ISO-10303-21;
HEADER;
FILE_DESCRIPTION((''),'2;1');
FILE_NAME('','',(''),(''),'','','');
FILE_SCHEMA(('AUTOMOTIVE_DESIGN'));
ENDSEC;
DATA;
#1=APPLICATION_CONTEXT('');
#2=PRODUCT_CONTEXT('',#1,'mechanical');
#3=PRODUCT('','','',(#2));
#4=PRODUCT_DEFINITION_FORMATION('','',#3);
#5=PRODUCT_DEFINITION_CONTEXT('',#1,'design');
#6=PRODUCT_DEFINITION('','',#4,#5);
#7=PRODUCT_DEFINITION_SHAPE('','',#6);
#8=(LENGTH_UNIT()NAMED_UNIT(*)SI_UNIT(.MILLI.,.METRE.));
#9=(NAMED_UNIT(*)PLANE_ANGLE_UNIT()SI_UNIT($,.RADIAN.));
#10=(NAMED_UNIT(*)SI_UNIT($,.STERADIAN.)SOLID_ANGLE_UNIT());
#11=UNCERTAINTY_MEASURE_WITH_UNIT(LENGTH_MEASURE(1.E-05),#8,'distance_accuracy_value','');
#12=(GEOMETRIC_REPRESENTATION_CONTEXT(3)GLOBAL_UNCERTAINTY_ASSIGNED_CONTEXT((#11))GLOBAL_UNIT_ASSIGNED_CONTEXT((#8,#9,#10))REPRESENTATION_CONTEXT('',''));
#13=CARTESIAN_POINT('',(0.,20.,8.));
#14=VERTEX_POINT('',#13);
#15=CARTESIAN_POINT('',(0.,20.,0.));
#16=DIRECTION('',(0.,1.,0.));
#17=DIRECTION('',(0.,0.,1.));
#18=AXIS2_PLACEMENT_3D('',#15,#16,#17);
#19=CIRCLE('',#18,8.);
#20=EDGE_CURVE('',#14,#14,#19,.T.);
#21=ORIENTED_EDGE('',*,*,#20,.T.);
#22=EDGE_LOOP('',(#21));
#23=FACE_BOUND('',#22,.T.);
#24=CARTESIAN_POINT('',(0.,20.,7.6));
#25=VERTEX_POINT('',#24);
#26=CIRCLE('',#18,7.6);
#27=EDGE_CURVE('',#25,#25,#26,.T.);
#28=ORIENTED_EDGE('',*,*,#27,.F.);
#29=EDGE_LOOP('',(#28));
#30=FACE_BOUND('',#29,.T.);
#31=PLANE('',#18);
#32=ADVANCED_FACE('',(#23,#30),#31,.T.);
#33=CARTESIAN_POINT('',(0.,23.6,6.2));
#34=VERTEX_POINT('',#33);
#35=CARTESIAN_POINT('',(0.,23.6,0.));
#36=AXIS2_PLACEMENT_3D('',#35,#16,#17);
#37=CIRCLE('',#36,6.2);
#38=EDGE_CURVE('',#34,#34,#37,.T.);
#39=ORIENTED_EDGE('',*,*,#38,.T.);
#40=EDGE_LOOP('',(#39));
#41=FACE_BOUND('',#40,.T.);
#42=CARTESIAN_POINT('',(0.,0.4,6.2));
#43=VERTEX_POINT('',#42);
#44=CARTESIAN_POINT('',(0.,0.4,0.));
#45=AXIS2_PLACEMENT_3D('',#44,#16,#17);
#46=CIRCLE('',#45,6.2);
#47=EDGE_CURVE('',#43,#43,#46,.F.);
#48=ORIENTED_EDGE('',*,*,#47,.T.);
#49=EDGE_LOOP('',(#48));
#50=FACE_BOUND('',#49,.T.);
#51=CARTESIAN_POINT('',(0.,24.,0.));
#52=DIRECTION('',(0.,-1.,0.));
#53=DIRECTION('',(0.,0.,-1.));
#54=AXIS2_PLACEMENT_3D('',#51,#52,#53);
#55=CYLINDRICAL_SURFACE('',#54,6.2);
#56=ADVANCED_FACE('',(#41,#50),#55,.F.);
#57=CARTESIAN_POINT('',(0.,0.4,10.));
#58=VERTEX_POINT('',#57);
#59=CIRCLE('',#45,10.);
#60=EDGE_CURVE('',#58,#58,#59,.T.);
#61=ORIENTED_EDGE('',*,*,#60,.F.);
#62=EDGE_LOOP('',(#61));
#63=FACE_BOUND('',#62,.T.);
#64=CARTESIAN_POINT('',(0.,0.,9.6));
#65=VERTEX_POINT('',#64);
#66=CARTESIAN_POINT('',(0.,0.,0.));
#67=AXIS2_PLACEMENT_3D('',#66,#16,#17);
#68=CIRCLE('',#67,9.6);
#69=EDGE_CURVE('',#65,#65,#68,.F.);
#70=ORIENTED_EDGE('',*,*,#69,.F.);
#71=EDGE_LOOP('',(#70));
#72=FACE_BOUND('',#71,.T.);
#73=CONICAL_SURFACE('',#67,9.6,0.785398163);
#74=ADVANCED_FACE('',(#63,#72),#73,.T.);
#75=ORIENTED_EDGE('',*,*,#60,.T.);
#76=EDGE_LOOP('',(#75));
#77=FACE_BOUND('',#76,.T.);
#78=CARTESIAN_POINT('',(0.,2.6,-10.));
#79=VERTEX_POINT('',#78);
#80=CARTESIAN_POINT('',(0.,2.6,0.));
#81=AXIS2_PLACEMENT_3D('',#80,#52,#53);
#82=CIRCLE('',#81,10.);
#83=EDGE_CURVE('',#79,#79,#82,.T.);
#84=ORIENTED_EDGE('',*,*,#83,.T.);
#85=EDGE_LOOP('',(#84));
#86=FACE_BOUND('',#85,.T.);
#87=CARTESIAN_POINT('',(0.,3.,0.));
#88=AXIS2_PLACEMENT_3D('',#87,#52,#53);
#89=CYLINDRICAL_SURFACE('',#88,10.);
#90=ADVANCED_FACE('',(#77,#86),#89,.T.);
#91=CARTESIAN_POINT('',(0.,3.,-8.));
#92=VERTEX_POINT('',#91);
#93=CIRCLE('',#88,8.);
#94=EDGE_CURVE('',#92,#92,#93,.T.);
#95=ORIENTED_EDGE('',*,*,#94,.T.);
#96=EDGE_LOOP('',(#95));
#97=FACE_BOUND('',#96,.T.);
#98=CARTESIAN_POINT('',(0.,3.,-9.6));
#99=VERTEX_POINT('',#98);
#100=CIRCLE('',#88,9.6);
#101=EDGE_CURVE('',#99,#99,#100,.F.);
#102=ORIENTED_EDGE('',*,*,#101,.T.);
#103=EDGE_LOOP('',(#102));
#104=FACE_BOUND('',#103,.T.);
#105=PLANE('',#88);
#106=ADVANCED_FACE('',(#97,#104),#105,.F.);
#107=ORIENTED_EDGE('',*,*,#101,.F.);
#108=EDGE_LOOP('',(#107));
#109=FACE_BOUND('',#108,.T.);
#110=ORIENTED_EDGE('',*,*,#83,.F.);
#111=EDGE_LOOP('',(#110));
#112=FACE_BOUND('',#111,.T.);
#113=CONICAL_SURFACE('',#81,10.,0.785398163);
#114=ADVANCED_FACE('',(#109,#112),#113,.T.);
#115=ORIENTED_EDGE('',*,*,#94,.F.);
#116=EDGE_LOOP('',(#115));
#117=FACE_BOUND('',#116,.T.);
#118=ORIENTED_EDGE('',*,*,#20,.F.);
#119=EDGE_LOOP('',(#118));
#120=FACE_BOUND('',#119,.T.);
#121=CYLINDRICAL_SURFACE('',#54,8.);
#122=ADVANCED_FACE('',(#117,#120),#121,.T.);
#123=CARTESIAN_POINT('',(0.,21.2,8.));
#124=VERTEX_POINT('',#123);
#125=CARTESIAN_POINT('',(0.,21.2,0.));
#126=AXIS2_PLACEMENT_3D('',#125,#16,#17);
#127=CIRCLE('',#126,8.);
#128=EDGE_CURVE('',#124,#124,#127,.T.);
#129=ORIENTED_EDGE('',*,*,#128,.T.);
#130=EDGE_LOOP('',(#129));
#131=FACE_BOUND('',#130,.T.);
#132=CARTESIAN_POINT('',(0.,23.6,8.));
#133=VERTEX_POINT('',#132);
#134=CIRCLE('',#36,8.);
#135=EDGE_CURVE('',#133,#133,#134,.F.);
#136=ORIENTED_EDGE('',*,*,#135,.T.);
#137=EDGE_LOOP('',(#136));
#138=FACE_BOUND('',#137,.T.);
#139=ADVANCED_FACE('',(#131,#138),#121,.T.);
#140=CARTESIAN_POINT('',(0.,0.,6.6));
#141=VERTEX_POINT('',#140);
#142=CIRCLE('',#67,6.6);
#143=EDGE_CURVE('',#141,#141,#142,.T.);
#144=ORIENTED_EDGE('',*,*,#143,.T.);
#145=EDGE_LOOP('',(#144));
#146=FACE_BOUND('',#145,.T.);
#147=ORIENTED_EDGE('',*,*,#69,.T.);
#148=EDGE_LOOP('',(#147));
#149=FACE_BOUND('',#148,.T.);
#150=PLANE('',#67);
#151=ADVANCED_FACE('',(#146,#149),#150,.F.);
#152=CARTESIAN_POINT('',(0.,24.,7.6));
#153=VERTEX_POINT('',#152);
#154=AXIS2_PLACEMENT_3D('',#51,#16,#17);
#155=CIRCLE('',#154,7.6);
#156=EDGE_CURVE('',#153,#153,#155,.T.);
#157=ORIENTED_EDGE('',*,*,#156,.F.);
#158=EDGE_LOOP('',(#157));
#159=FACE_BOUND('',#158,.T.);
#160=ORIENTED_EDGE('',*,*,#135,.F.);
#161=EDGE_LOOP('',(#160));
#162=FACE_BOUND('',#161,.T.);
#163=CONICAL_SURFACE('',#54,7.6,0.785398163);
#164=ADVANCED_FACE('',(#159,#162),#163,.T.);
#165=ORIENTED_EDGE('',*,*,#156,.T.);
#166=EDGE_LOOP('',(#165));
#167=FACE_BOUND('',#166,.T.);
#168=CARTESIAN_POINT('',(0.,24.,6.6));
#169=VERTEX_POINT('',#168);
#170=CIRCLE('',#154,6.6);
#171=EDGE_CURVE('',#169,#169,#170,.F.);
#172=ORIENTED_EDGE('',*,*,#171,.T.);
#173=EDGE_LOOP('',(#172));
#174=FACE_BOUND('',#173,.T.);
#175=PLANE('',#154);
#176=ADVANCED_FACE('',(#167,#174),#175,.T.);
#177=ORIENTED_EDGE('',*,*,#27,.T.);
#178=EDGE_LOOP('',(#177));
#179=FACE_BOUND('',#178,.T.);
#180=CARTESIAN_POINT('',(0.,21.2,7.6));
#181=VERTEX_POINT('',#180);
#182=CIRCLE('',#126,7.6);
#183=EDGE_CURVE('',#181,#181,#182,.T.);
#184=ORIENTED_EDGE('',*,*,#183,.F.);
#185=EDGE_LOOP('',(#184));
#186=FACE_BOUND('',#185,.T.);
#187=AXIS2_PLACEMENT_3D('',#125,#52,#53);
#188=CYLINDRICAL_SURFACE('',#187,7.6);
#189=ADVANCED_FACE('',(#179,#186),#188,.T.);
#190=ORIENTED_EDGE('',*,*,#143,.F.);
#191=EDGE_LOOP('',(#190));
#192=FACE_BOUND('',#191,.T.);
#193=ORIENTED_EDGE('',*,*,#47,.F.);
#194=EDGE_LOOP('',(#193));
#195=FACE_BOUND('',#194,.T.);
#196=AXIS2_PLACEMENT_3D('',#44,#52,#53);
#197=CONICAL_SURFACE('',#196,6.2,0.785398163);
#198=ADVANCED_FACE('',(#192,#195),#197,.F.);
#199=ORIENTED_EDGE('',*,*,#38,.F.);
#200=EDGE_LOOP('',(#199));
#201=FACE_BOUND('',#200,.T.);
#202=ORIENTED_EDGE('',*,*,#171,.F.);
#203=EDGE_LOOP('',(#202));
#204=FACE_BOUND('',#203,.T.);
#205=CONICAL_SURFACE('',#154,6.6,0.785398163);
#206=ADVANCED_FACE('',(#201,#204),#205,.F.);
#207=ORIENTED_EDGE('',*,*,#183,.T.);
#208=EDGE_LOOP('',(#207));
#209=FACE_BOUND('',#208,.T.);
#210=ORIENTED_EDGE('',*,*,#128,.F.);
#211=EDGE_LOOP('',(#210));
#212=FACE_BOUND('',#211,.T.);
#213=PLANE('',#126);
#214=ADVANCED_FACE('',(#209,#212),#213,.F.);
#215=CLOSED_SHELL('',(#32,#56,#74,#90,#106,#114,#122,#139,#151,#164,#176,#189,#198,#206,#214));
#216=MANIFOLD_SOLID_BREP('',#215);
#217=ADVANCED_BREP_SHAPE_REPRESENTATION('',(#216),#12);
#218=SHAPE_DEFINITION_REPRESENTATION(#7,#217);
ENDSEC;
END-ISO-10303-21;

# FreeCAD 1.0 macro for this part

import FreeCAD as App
import Part
import Sketcher

V = App.Vector


def edges_at(feature, points):
    """Names of the edges that pass closest to the given points."""
    edges = feature.Shape.Edges
    near = lambda p: min(range(len(edges)), key=lambda i: edges[i].distToShape(Part.Vertex(*p))[0])
    return sorted({f"Edge{near(p) + 1}" for p in points})

doc = App.newDocument("Part")
body = doc.addObject("PartDesign::Body", "Body")

sketch1 = body.newObject("Sketcher::SketchObject", "Sketch")
sketch1.AttachmentSupport = (doc.getObject("XZ_Plane"), [""])
sketch1.MapMode = "FlatFace"
sketch1.addGeometry(Part.Circle(V(0, 0, 0), V(0, 0, 1), 8), False)
sketch1.addConstraint([
    Sketcher.Constraint("Coincident", 0, 3, -1, 1),
    Sketcher.Constraint("Diameter", 0, 16.0),
])
pad1 = body.newObject("PartDesign::Pad", "Pad")
pad1.Profile = sketch1
pad1.Length = 24
pad1.Reversed = True

sketch2 = body.newObject("Sketcher::SketchObject", "Sketch001")
sketch2.AttachmentSupport = (doc.getObject("XZ_Plane"), [""])
sketch2.MapMode = "FlatFace"
sketch2.addGeometry(Part.Circle(V(0, 0, 0), V(0, 0, 1), 10), False)
sketch2.addConstraint([
    Sketcher.Constraint("Coincident", 0, 3, -1, 1),
    Sketcher.Constraint("Diameter", 0, 20.0),
])
pad2 = body.newObject("PartDesign::Pad", "Pad001")
pad2.Profile = sketch2
pad2.Length = 3
pad2.Reversed = True

sketch3 = body.newObject("Sketcher::SketchObject", "Sketch002")
sketch3.AttachmentSupport = (doc.getObject("XZ_Plane"), [""])
sketch3.MapMode = "FlatFace"
sketch3.AttachmentOffset = App.Placement(V(0, 0, -20), App.Rotation())
sketch3.addGeometry([
    Part.Circle(V(0, 0, 0), V(0, 0, 1), 8),
    Part.Circle(V(0, 0, 0), V(0, 0, 1), 8),
], False)
sketch3.addConstraint([
    Sketcher.Constraint("Coincident", 0, 3, -1, 1),
    Sketcher.Constraint("Coincident", 1, 3, -1, 1),
    Sketcher.Constraint("Diameter", 0, 16.0),
    Sketcher.Constraint("Diameter", 1, 15.2),
])
pocket1 = body.newObject("PartDesign::Pocket", "Pocket")
pocket1.Profile = sketch3
pocket1.Length = 1.2

sketch4 = body.newObject("Sketcher::SketchObject", "Sketch003")
sketch4.AttachmentSupport = (doc.getObject("XZ_Plane"), [""])
sketch4.MapMode = "FlatFace"
sketch4.addGeometry(Part.Circle(V(0, 0, 0), V(0, 0, 1), 6), False)
sketch4.addConstraint([
    Sketcher.Constraint("Coincident", 0, 3, -1, 1),
    Sketcher.Constraint("Diameter", 0, 12.4),
])
pocket2 = body.newObject("PartDesign::Pocket", "Pocket001")
pocket2.Profile = sketch4
pocket2.Type = "ThroughAll"
doc.recompute()

chamfer = body.newObject("PartDesign::Chamfer", "Chamfer")
chamfer.Base = (pocket2, edges_at(pocket2, [(-6.2, 24, 0), (-6.2, 0, 0)]))
chamfer.Size = 0.4
doc.recompute()

chamfer2 = body.newObject("PartDesign::Chamfer", "Chamfer001")
chamfer2.Base = (chamfer, edges_at(chamfer, [(-8, 24, 0), (-10, 3, 0), (-10, 0, 0)]))
chamfer2.Size = 0.4

doc.recompute()
